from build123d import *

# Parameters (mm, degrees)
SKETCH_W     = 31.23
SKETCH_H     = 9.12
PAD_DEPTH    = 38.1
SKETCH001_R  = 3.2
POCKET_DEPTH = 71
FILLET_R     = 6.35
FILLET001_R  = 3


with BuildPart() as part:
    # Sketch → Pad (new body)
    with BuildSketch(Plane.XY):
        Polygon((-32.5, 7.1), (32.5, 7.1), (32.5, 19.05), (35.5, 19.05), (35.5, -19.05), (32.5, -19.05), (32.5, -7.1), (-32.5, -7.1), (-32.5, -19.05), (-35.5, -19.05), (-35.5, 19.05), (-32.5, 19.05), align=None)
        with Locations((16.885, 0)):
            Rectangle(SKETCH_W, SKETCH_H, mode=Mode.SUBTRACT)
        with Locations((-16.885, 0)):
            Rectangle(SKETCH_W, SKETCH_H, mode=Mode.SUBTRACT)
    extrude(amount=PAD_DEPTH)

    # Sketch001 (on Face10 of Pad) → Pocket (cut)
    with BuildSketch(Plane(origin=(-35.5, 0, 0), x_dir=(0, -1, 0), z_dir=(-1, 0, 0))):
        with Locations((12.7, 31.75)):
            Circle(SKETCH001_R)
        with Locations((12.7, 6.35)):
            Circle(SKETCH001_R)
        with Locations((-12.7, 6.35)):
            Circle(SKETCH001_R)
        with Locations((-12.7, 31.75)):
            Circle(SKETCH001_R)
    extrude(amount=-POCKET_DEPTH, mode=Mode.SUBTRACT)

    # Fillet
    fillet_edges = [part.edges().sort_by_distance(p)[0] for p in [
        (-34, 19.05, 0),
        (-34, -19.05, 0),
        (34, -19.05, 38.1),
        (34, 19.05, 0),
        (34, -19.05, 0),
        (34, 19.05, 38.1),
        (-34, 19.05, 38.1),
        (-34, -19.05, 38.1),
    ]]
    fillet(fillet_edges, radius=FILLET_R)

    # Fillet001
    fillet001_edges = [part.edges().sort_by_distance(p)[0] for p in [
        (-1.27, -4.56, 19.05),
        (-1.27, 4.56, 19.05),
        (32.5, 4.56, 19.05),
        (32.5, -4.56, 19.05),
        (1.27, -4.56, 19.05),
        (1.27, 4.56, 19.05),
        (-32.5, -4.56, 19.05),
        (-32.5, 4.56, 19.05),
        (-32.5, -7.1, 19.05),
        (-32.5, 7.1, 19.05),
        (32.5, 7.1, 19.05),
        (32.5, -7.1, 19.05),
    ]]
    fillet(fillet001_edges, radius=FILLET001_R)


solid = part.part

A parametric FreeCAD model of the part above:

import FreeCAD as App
import Part
import Sketcher

V = App.Vector


def edges_at(feature, points):
    """Names of the edges that pass closest to the given points."""
    edges = feature.Shape.Edges
    near = lambda p: min(range(len(edges)), key=lambda i: edges[i].distToShape(Part.Vertex(*p))[0])
    return sorted({f"Edge{near(p) + 1}" for p in points})

doc = App.newDocument("Part")
body = doc.addObject("PartDesign::Body", "Body")

sketch1 = body.newObject("Sketcher::SketchObject", "Sketch")
sketch1.AttachmentSupport = (doc.getObject("XY_Plane"), [""])
sketch1.MapMode = "FlatFace"
sketch1.addGeometry([
    Part.LineSegment(V(32.5, 7.1, 0), V(-32.5, 7.1, 0)),
    Part.LineSegment(V(-32.5, 7.1, 0), V(-32.5, 19.05, 0)),
    Part.LineSegment(V(-32.5, 19.05, 0), V(-35.5, 19.05, 0)),
    Part.LineSegment(V(-35.5, 19.05, 0), V(-35.5, -19.05, 0)),
    Part.LineSegment(V(-35.5, -19.05, 0), V(-32.5, -19.05, 0)),
    Part.LineSegment(V(-32.5, -19.05, 0), V(-32.5, -7.1, 0)),
    Part.LineSegment(V(-32.5, -7.1, 0), V(32.5, -7.1, 0)),
    Part.LineSegment(V(32.5, -7.1, 0), V(32.5, -19.05, 0)),
    Part.LineSegment(V(32.5, -19.05, 0), V(35.5, -19.05, 0)),
    Part.LineSegment(V(35.5, -19.05, 0), V(35.5, 19.05, 0)),
    Part.LineSegment(V(35.5, 19.05, 0), V(32.5, 19.05, 0)),
    Part.LineSegment(V(32.5, 19.05, 0), V(32.5, 7.1, 0)),
    Part.LineSegment(V(1.27, -4.56, 0), V(1.27, 4.56, 0)),
    Part.LineSegment(V(1.27, 4.56, 0), V(32.5, 4.56, 0)),
    Part.LineSegment(V(32.5, 4.56, 0), V(32.5, -4.56, 0)),
    Part.LineSegment(V(32.5, -4.56, 0), V(1.27, -4.56, 0)),
    Part.LineSegment(V(-32.5, -4.56, 0), V(-32.5, 4.56, 0)),
    Part.LineSegment(V(-32.5, 4.56, 0), V(-1.27, 4.56, 0)),
    Part.LineSegment(V(-1.27, 4.56, 0), V(-1.27, -4.56, 0)),
    Part.LineSegment(V(-1.27, -4.56, 0), V(-32.5, -4.56, 0)),
], False)
sketch1.addConstraint([
    Sketcher.Constraint("Coincident", 0, 2, 1, 1),
    Sketcher.Constraint("Coincident", 1, 2, 2, 1),
    Sketcher.Constraint("Coincident", 2, 2, 3, 1),
    Sketcher.Constraint("Coincident", 3, 2, 4, 1),
    Sketcher.Constraint("Coincident", 4, 2, 5, 1),
    Sketcher.Constraint("Coincident", 5, 2, 6, 1),
    Sketcher.Constraint("Coincident", 6, 2, 7, 1),
    Sketcher.Constraint("Coincident", 7, 2, 8, 1),
    Sketcher.Constraint("Coincident", 8, 2, 9, 1),
    Sketcher.Constraint("Coincident", 9, 2, 10, 1),
    Sketcher.Constraint("Coincident", 10, 2, 11, 1),
    Sketcher.Constraint("Coincident", 11, 2, 0, 1),
    Sketcher.Constraint("Coincident", 12, 2, 13, 1),
    Sketcher.Constraint("Coincident", 13, 2, 14, 1),
    Sketcher.Constraint("Coincident", 14, 2, 15, 1),
    Sketcher.Constraint("Coincident", 15, 2, 12, 1),
    Sketcher.Constraint("Coincident", 16, 2, 17, 1),
    Sketcher.Constraint("Coincident", 17, 2, 18, 1),
    Sketcher.Constraint("Coincident", 18, 2, 19, 1),
    Sketcher.Constraint("Coincident", 19, 2, 16, 1),
    Sketcher.Constraint("Horizontal", 0),
    Sketcher.Constraint("Vertical", 1),
    Sketcher.Constraint("Horizontal", 2),
    Sketcher.Constraint("Vertical", 3),
    Sketcher.Constraint("Horizontal", 4),
    Sketcher.Constraint("Vertical", 5),
    Sketcher.Constraint("Horizontal", 6),
    Sketcher.Constraint("Vertical", 7),
    Sketcher.Constraint("Horizontal", 8),
    Sketcher.Constraint("Vertical", 9),
    Sketcher.Constraint("Horizontal", 10),
    Sketcher.Constraint("Vertical", 11),
    Sketcher.Constraint("Vertical", 12),
    Sketcher.Constraint("Horizontal", 13),
    Sketcher.Constraint("Vertical", 14),
    Sketcher.Constraint("Horizontal", 15),
    Sketcher.Constraint("Vertical", 16),
    Sketcher.Constraint("Horizontal", 17),
    Sketcher.Constraint("Vertical", 18),
    Sketcher.Constraint("Horizontal", 19),
    Sketcher.Constraint("Symmetric", 0, 2, 6, 2, -1, 1),
    Sketcher.Constraint("Symmetric", 2, 2, 8, 2, -1, 1),
    Sketcher.Constraint("Symmetric", 4, 2, 10, 2, -1, 1),
    Sketcher.Constraint("Symmetric", 14, 2, 16, 2, -1, 1),
    Sketcher.Constraint("Symmetric", 12, 2, 18, 2, -1, 1),
    Sketcher.Constraint("Symmetric", 4, 2, 7, 2, -2),
    Sketcher.Constraint("Horizontal", 13, 2, 16, 2),
    Sketcher.Constraint("Vertical", 11, 2, 13, 2),
    Sketcher.Constraint("DistanceX", 0, 2, 0, 1, 65.0),
    Sketcher.Constraint("DistanceX", 2, 2, 2, 1, 3.0),
    Sketcher.Constraint("DistanceY", 3, 2, 3, 1, 38.1),
    Sketcher.Constraint("DistanceX", 13, 1, 13, 2, 31.23),
    Sketcher.Constraint("DistanceY", 1, 1, 1, 2, 11.95),
    Sketcher.Constraint("DistanceY", 12, 1, 12, 2, 9.12),
])
pad1 = body.newObject("PartDesign::Pad", "Pad")
pad1.Profile = sketch1
pad1.Length = 38.1

sketch2 = body.newObject("Sketcher::SketchObject", "Sketch001")
sketch2.AttachmentSupport = (doc.getObject("YZ_Plane"), [""])
sketch2.MapMode = "FlatFace"
sketch2.AttachmentOffset = App.Placement(V(0, 0, -35.5), App.Rotation())
sketch2.addGeometry([
    Part.Circle(V(-12.7, 31.75, 0), V(0, 0, 1), 3.2),
    Part.Circle(V(-12.7, 6.35, 0), V(0, 0, 1), 3.2),
    Part.Circle(V(12.7, 6.35, 0), V(0, 0, 1), 3.2),
    Part.Circle(V(12.7, 31.75, 0), V(0, 0, 1), 3.2),
], False)
sketch2.addConstraint([
    Sketcher.Constraint("Equal", 0, 1),
    Sketcher.Constraint("Equal", 1, 2),
    Sketcher.Constraint("Equal", 2, 3),
    Sketcher.Constraint("Symmetric", 1, 3, 2, 3, -2),
    Sketcher.Constraint("Symmetric", 0, 3, 3, 3, -2),
    Sketcher.Constraint("Vertical", 0, 3, 1, 3),
    Sketcher.Constraint("Diameter", 0, 6.4),
    Sketcher.Constraint("DistanceX", 0, 3, -1, 1, 12.7),
    Sketcher.Constraint("DistanceY", 1, 3, 0, 3, 25.4),
    Sketcher.Constraint("DistanceY", -1, 1, 0, 3, 31.75),
])
pocket1 = body.newObject("PartDesign::Pocket", "Pocket")
pocket1.Profile = sketch2
pocket1.Length = 71
pocket1.Reversed = True
doc.recompute()

fillet = body.newObject("PartDesign::Fillet", "Fillet")
fillet.Base = (pocket1, edges_at(pocket1, [
    (-34, 19.05, 0),
    (-34, -19.05, 0),
    (34, -19.05, 38.1),
    (34, 19.05, 0),
    (34, -19.05, 0),
    (34, 19.05, 38.1),
    (-34, 19.05, 38.1),
    (-34, -19.05, 38.1),
]))
fillet.Radius = 6.35
doc.recompute()

fillet2 = body.newObject("PartDesign::Fillet", "Fillet001")
fillet2.Base = (fillet, edges_at(fillet, [
    (-1.27, -4.56, 19.05),
    (-1.27, 4.56, 19.05),
    (32.5, 4.56, 19.05),
    (32.5, -4.56, 19.05),
    (1.27, -4.56, 19.05),
    (1.27, 4.56, 19.05),
    (-32.5, -4.56, 19.05),
    (-32.5, 4.56, 19.05),
    (-32.5, -7.1, 19.05),
    (-32.5, 7.1, 19.05),
    (32.5, 7.1, 19.05),
    (32.5, -7.1, 19.05),
]))
fillet2.Radius = 3

doc.recompute()
